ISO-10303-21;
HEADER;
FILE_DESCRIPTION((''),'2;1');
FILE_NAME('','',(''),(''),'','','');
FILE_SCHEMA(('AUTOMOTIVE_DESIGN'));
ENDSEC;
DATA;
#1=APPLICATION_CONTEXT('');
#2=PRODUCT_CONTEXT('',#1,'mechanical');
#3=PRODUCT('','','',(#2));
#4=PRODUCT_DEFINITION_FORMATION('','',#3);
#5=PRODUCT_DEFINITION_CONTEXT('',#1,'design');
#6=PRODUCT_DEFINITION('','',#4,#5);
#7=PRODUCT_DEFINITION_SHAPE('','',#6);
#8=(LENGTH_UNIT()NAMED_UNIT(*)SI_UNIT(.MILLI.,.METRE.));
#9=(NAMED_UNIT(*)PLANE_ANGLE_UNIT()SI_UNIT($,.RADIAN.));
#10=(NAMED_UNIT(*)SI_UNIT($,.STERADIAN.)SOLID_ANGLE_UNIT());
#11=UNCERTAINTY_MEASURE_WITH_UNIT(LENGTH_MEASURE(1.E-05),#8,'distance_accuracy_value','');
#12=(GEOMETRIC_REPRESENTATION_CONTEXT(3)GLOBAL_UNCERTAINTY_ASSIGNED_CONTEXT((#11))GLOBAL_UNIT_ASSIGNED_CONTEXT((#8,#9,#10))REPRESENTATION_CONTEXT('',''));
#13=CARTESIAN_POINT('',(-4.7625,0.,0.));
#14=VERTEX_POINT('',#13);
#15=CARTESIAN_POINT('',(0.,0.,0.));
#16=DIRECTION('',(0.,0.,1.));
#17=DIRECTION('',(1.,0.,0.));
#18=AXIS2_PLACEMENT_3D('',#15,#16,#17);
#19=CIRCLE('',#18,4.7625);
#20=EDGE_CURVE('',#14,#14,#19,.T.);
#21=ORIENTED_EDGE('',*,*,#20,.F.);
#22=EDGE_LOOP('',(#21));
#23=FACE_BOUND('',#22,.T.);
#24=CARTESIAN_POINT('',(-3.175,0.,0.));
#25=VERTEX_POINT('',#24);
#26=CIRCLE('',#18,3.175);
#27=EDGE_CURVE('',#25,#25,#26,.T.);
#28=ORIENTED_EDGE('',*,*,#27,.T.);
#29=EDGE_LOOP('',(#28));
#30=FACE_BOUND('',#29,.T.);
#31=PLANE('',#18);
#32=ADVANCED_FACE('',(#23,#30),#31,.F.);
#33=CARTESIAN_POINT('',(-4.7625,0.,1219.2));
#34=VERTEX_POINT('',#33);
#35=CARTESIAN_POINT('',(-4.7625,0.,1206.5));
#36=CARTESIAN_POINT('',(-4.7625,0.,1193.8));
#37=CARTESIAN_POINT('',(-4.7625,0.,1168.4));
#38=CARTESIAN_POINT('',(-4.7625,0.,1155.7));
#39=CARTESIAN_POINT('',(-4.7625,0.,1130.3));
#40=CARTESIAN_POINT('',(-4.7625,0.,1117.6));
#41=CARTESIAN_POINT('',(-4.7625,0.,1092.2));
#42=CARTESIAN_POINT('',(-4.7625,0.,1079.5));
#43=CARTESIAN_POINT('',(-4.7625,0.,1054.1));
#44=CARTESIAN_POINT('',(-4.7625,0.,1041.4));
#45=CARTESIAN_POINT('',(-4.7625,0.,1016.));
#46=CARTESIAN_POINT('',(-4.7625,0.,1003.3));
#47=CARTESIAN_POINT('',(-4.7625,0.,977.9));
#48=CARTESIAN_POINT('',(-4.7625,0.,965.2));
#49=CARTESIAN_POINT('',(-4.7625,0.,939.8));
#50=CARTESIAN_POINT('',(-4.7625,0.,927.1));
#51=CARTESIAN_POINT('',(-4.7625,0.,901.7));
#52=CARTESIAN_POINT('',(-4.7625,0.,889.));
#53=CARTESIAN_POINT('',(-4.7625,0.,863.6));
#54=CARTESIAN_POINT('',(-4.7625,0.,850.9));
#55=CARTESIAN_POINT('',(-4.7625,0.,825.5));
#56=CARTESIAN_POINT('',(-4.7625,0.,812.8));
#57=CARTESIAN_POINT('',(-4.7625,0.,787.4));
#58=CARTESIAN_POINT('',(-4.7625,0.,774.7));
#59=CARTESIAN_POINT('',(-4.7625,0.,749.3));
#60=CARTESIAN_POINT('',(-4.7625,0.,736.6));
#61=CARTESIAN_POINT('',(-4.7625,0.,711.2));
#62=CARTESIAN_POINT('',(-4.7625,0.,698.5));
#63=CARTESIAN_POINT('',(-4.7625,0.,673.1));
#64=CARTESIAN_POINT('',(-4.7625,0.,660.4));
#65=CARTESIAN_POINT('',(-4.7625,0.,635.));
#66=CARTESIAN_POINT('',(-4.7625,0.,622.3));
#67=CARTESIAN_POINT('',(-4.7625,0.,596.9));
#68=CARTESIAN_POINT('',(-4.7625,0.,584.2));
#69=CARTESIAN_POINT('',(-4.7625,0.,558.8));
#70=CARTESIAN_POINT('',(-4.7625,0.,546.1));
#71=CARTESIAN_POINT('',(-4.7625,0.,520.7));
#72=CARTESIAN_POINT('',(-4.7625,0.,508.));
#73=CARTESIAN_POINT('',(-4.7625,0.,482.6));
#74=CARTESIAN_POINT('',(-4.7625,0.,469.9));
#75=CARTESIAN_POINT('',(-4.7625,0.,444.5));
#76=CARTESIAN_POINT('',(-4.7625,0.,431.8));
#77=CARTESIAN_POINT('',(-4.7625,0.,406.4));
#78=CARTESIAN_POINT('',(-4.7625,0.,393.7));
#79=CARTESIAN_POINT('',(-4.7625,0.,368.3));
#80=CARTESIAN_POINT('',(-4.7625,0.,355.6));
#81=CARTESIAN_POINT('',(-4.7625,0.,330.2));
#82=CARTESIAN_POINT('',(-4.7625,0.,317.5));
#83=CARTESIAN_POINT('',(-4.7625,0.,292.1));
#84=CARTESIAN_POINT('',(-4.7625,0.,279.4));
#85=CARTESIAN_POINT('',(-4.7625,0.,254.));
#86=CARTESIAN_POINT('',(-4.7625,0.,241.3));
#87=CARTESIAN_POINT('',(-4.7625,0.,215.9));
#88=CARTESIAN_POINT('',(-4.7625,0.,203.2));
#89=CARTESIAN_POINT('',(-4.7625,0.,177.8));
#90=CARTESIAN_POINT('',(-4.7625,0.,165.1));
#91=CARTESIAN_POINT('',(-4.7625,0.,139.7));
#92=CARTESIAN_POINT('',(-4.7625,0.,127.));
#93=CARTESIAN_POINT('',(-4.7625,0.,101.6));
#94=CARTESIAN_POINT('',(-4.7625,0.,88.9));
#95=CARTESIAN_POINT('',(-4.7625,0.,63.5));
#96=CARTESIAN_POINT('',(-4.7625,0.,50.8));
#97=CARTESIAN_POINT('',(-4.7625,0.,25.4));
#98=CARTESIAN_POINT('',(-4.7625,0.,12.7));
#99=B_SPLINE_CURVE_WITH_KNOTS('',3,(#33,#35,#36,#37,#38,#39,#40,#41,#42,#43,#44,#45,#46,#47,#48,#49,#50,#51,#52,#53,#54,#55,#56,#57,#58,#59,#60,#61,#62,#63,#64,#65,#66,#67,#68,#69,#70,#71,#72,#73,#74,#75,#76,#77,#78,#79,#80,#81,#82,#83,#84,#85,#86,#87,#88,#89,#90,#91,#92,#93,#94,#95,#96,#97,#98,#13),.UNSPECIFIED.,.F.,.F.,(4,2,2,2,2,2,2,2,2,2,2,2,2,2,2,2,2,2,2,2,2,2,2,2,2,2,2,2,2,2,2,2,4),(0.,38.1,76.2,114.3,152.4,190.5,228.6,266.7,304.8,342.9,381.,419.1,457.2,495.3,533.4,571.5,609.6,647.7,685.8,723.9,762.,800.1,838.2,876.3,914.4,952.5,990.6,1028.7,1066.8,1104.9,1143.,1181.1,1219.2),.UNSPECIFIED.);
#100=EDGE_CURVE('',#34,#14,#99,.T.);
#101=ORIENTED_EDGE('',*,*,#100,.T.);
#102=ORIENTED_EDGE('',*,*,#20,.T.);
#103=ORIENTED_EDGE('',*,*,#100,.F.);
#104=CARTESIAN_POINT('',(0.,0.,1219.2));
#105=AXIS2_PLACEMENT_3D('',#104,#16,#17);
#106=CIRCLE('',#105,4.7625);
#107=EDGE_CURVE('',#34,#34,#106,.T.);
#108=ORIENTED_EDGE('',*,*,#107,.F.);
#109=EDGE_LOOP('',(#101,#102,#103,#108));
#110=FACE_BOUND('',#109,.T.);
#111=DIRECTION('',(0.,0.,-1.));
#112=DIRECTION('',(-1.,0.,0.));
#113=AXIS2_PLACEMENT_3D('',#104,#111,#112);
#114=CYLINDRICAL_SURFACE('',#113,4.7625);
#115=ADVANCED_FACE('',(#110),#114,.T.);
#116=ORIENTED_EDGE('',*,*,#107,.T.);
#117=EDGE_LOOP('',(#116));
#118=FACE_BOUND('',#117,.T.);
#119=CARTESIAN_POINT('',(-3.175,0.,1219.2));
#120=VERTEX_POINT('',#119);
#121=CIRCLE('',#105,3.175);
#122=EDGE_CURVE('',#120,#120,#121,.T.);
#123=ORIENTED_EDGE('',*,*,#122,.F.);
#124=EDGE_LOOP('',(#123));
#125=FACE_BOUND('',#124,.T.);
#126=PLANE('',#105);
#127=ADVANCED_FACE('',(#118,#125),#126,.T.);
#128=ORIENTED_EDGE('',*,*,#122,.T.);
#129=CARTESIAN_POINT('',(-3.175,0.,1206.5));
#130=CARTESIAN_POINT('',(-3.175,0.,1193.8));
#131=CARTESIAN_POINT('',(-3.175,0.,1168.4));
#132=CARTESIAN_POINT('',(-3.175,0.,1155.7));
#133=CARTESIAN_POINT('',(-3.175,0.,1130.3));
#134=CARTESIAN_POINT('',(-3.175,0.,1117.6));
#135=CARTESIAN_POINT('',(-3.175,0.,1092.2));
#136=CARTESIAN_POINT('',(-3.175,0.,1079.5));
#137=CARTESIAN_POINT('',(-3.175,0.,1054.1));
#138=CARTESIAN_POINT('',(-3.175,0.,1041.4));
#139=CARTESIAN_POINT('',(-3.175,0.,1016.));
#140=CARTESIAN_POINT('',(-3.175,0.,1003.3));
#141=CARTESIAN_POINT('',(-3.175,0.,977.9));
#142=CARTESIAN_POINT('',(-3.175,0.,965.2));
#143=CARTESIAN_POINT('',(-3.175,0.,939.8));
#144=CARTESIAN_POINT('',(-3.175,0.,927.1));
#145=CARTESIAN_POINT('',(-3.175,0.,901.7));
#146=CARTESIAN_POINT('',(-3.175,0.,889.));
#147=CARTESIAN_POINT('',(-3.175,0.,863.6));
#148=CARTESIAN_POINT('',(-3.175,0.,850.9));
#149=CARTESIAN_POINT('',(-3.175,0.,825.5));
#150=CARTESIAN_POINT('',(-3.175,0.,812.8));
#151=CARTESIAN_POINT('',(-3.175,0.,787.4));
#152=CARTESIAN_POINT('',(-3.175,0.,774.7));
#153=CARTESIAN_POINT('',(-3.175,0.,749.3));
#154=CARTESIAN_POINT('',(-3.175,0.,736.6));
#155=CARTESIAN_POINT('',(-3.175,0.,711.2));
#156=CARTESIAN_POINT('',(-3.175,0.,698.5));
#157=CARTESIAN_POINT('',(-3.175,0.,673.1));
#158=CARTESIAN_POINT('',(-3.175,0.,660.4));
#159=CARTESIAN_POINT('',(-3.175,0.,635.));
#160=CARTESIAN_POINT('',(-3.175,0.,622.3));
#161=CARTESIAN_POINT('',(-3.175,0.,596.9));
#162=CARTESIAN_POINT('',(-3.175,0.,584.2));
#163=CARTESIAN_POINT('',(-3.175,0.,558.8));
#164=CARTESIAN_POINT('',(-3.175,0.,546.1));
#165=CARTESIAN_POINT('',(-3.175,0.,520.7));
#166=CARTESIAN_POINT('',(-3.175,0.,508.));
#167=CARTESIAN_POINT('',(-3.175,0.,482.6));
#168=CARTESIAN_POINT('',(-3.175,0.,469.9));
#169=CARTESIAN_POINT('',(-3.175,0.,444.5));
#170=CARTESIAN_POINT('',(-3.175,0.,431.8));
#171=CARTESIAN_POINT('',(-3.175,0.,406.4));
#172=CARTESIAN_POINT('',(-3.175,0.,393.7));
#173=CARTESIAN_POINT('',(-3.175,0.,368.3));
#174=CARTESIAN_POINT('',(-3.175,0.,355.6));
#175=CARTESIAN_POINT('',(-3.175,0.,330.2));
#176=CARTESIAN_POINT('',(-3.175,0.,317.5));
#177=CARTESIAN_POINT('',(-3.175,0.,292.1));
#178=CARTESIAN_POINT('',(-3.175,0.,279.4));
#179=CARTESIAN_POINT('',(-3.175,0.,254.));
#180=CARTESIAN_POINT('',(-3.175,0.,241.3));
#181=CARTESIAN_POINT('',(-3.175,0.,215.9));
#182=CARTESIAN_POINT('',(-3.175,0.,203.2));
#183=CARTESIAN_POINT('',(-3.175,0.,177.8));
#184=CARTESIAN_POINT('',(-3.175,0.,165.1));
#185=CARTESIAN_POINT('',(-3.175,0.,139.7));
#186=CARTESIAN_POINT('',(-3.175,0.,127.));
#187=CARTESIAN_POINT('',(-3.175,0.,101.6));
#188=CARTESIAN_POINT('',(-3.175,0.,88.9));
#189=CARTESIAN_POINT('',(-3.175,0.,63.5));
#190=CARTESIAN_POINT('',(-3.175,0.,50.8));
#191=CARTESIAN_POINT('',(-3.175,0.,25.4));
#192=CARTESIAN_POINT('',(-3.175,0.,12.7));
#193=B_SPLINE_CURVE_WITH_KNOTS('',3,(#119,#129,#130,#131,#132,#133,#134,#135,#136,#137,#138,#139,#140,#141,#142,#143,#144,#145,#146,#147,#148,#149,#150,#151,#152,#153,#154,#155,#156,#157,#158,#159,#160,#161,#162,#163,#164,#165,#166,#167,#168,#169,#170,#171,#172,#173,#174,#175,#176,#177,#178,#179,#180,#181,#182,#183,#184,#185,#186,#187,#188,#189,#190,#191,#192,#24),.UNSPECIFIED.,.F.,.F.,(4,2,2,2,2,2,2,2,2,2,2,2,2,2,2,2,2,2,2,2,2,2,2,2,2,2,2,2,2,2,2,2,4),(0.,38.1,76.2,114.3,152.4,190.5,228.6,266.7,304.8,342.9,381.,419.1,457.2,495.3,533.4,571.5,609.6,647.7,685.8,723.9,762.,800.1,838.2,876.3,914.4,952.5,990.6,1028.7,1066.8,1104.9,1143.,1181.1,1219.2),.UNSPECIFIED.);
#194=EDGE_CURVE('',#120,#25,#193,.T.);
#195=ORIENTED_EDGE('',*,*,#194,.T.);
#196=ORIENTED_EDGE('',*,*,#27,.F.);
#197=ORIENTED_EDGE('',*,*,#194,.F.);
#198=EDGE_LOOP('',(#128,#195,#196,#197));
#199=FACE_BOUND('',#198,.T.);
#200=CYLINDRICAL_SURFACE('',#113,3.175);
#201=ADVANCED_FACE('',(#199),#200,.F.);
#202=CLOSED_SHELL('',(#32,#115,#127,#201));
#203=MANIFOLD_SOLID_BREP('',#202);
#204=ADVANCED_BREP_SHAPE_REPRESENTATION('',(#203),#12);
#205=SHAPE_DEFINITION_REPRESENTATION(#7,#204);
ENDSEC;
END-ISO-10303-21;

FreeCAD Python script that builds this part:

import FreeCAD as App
import Part
import Sketcher
Q = App.Units.Quantity

doc = App.newDocument("Part")
params = doc.addObject("Spreadsheet::Sheet", "Params")
for row, (alias, value) in enumerate([
    ("sketch1_diameter", "0.25 in"),
    ("sketch1_diameter2", "0.375 in"),
    ("pad1_length", "48 in"),
], start=1):
    params.set(f"A{row}", alias)
    params.set(f"B{row}", "=" + value)
    params.setAlias(f"B{row}", alias)

body = doc.addObject("PartDesign::Body", "Body")

sketch1 = body.newObject("Sketcher::SketchObject", "Sketch")
sketch1.AttachmentSupport = (doc.getObject("XY_Plane"), [""])
sketch1.MapMode = "FlatFace"
sketch1.addGeometry([
    Part.Circle(App.Vector(0, 0, 0), App.Vector(0, 0, 1), 4.7625),
    Part.Circle(App.Vector(0, 0, 0), App.Vector(0, 0, 1), 3.175),
], False)
sketch1.addConstraint([
    Sketcher.Constraint("Coincident", 0, 3, -1, 1),
    Sketcher.Constraint("Coincident", 1, 3, -1, 1),
    Sketcher.Constraint("Diameter", 1, Q("0.25 in")),
    Sketcher.Constraint("Diameter", 0, Q("0.375 in")),
])
sketch1.setExpression("Constraints[2]", "Params.sketch1_diameter")
sketch1.setExpression("Constraints[3]", "Params.sketch1_diameter2")
pad1 = body.newObject("PartDesign::Pad", "Pad")
pad1.Profile = sketch1
pad1.setExpression("Length", "Params.pad1_length")

doc.recompute()
